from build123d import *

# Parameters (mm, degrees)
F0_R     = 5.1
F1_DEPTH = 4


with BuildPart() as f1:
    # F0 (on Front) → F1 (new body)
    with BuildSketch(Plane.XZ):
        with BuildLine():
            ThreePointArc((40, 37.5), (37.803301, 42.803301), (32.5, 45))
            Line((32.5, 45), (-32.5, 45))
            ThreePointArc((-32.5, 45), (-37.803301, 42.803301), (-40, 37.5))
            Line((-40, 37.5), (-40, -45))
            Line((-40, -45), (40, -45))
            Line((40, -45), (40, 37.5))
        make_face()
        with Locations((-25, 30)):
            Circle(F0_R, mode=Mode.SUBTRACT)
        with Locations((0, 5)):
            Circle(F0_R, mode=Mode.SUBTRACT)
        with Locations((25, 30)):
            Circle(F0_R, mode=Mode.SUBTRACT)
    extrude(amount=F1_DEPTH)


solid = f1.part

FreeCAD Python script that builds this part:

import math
import FreeCAD as App
import Part
import Sketcher
from FreeCAD import Vector

doc = App.newDocument("Part")
body = doc.addObject("PartDesign::Body", "Body")

# Sketch on XZ plane
sketch1 = body.newObject("Sketcher::SketchObject", "Sketch")
sketch1.AttachmentSupport = (doc.getObject("XZ_Plane"), [""])
sketch1.MapMode = "FlatFace"
sketch1.addGeometry([
    Part.ArcOfCircle(Part.Circle(Vector(32.5, 37.5, 0), Vector(0, 0, 1), 7.5), math.radians(-0.000004), math.radians(90.000004)),  # 0
    Part.LineSegment(Vector(32.5, 45, 0), Vector(-32.5, 45, 0)),  # 1
    Part.ArcOfCircle(Part.Circle(Vector(-32.5, 37.5, 0), Vector(0, 0, 1), 7.5), math.radians(89.999996), math.radians(180.000004)),  # 2
    Part.LineSegment(Vector(-40, 37.5, 0), Vector(-40, -45, 0)),  # 3
    Part.LineSegment(Vector(-40, -45, 0), Vector(40, -45, 0)),  # 4
    Part.LineSegment(Vector(40, -45, 0), Vector(40, 37.5, 0)),  # 5
    Part.Circle(Vector(0, 5, 0), Vector(0, 0, 1), 5.1),  # 6
    Part.Circle(Vector(-25, 30, 0), Vector(0, 0, 1), 5.1),  # 7
    Part.Circle(Vector(25, 30, 0), Vector(0, 0, 1), 5.1),  # 8
], False)
sketch1.addConstraint([
    Sketcher.Constraint("Tangent", 0, 2, 1, 1),
    Sketcher.Constraint("Tangent", 1, 2, 2, 1),
    Sketcher.Constraint("Tangent", 2, 2, 3, 1),
    Sketcher.Constraint("Coincident", 3, 2, 4, 1),
    Sketcher.Constraint("Coincident", 4, 2, 5, 1),
    Sketcher.Constraint("Tangent", 5, 2, 0, 1),
    Sketcher.Constraint("Horizontal", 1),
    Sketcher.Constraint("Vertical", 3),
    Sketcher.Constraint("Horizontal", 4),
    Sketcher.Constraint("Vertical", 5),
    Sketcher.Constraint("Equal", 0, 2),
    Sketcher.Constraint("Equal", 6, 7),
    Sketcher.Constraint("Equal", 7, 8),
    Sketcher.Constraint("Symmetric", 7, 3, 8, 3, -2),
    Sketcher.Constraint("PointOnObject", 6, 3, -2),
    Sketcher.Constraint("Diameter", 6, 10.2),
    Sketcher.Constraint("Radius", 0, 7.5),
    Sketcher.Constraint("DistanceX", 1, 2, 1, 1, 65.0),
    Sketcher.Constraint("DistanceY", 3, 2, 3, 1, 82.5),
    Sketcher.Constraint("DistanceY", -1, 1, 6, 3, 5.0),
    Sketcher.Constraint("DistanceX", 7, 3, -1, 1, 25.0),
    Sketcher.Constraint("DistanceY", -1, 1, 7, 3, 30.0),
    Sketcher.Constraint("DistanceY", -1, 1, 0, 2, 45.0),
    Sketcher.Constraint("DistanceX", 2, 2, -1, 1, 40.0),
])
pad1 = body.newObject("PartDesign::Pad", "Pad")
pad1.Profile = sketch1
pad1.Length = 4

doc.recompute()
